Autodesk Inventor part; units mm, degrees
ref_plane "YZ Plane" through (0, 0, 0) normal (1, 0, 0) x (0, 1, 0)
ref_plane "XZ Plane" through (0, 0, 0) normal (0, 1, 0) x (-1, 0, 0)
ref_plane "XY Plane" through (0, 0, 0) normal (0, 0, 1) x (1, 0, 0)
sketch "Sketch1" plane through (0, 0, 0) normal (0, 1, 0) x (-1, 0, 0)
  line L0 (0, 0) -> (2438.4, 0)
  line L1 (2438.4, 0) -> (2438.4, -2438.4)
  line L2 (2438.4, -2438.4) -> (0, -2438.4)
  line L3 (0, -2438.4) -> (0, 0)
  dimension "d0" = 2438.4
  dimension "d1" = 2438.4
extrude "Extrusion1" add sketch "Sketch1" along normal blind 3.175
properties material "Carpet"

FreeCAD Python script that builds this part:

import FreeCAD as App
import Part
import Sketcher

V = App.Vector
Q = App.Units.Quantity

doc = App.newDocument("Part")
body = doc.addObject("PartDesign::Body", "Body")

# Sketch on XZ plane
sketch1 = doc.addObject("Sketcher::SketchObject", "Sketch")
body.addObject(sketch1)
sketch1.AttachmentSupport = (doc.XZ_Plane, [""])
sketch1.MapMode = "FlatFace"
sketch1.addGeometry([
    Part.LineSegment(V(-2438, 0, 0), V(0, 0, 0)),
    Part.LineSegment(V(0, 0, 0), V(0, -2438, 0)),
    Part.LineSegment(V(0, -2438, 0), V(-2438, -2438, 0)),
    Part.LineSegment(V(-2438, -2438, 0), V(-2438, 0, 0)),
], False)
sketch1.addConstraint([
    Sketcher.Constraint("Coincident", 0, 2, 1, 1),
    Sketcher.Constraint("Coincident", 1, 2, 2, 1),
    Sketcher.Constraint("Coincident", 2, 2, 3, 1),
    Sketcher.Constraint("Coincident", 3, 2, 0, 1),
    Sketcher.Constraint("Horizontal", 0),
    Sketcher.Constraint("Vertical", 1),
    Sketcher.Constraint("Horizontal", 2),
    Sketcher.Constraint("Vertical", 3),
    Sketcher.Constraint("Coincident", 0, 2, -1, 1),
    Sketcher.Constraint("Equal", 2, 1),
    Sketcher.Constraint("DistanceX", 0, 1, 0, 2, Q("96 in")),
])
pad1 = doc.addObject("PartDesign::Pad", "Pad")
body.addObject(pad1)
pad1.Profile = sketch1
pad1.Length = Q("0.125 in")
pad1.Reversed = True

doc.recompute()
